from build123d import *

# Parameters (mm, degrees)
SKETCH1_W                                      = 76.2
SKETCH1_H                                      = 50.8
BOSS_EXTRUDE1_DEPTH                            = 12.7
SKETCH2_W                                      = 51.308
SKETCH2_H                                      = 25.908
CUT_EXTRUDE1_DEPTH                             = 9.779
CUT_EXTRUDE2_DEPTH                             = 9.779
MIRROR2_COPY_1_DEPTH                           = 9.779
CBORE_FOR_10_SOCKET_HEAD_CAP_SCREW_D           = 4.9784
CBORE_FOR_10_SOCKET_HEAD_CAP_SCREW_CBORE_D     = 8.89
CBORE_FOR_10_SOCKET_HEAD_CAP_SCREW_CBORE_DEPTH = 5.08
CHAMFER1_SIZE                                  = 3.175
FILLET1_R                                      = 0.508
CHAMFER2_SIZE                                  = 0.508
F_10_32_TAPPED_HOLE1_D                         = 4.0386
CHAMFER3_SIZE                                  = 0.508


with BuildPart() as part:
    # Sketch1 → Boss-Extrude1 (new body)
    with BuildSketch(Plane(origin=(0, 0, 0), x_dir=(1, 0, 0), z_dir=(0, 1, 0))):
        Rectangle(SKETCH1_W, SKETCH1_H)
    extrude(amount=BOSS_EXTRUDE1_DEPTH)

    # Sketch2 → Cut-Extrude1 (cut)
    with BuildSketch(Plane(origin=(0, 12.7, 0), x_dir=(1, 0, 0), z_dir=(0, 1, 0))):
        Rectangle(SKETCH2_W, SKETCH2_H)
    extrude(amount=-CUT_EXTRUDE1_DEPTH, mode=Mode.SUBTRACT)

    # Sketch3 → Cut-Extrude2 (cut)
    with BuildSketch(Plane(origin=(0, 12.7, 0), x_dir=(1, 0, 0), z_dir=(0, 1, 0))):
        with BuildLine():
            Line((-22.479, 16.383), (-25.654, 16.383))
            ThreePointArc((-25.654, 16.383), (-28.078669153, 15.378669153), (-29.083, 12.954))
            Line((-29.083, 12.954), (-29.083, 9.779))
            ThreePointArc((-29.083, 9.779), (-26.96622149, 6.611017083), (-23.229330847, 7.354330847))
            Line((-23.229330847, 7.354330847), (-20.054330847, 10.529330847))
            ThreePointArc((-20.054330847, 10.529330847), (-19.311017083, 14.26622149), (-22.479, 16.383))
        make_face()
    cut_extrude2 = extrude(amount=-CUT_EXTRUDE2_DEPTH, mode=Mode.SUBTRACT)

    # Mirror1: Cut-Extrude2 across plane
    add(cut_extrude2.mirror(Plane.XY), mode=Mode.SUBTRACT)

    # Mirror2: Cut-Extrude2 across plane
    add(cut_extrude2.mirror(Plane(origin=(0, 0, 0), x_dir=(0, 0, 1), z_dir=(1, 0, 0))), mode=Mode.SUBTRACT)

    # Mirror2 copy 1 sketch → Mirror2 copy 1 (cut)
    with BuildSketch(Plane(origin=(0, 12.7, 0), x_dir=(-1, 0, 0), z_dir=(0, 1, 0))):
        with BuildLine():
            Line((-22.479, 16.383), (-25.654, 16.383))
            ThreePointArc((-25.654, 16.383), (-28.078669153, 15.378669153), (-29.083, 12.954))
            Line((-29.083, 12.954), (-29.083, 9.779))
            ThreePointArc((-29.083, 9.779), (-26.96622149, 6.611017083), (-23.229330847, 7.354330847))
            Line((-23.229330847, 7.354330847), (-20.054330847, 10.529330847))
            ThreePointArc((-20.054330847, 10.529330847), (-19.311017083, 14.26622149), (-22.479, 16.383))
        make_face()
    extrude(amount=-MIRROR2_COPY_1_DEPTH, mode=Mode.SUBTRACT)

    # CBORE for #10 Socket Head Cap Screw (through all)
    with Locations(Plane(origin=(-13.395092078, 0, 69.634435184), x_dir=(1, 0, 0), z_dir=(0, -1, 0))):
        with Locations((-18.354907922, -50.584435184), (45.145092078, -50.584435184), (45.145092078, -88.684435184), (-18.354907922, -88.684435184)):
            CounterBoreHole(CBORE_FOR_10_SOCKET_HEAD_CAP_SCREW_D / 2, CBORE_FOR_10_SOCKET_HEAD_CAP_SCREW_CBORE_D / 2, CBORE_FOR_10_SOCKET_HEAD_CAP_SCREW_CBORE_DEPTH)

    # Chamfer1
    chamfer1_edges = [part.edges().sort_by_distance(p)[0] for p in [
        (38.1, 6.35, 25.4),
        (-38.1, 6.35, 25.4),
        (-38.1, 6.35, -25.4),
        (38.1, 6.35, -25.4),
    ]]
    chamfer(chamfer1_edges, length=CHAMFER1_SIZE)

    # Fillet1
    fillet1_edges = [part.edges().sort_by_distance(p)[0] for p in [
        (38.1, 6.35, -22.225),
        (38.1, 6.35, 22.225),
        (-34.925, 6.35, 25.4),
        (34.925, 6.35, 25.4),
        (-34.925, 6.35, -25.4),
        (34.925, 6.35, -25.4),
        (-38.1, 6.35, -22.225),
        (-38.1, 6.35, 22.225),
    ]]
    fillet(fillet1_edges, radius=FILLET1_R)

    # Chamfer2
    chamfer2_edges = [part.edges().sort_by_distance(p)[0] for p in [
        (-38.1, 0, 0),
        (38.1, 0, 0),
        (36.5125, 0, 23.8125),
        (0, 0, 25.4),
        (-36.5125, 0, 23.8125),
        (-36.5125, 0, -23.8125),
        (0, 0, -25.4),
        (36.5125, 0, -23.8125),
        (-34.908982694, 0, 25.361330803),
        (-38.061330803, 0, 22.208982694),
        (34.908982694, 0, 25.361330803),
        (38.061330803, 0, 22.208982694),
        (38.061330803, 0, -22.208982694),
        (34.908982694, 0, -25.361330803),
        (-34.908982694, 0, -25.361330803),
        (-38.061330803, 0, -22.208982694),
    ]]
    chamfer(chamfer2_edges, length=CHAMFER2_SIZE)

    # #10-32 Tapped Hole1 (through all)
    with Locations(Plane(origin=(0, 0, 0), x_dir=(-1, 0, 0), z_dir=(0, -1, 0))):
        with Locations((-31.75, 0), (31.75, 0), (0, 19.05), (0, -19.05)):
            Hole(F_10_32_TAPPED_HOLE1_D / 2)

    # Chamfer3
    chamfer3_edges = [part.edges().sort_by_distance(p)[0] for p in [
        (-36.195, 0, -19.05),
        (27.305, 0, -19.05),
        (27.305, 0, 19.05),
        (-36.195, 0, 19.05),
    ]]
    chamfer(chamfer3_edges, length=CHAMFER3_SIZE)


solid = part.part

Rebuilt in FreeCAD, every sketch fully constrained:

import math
import FreeCAD as App
import Part
import Sketcher

V = App.Vector
Q = App.Units.Quantity


def edges_at(feature, points):
    """Names of the edges that pass closest to the given points."""
    edges = feature.Shape.Edges
    near = lambda p: min(range(len(edges)), key=lambda i: edges[i].distToShape(Part.Vertex(*p))[0])
    return sorted({f"Edge{near(p) + 1}" for p in points})

doc = App.newDocument("Part")
params = doc.addObject("Spreadsheet::Sheet", "Params")
for row, (alias, value) in enumerate([
    ("sketch1_width", "3 in"),
    ("sketch1_height", "2 in"),
    ("pad1_length", "0.5 in"),
    ("sketch2_width", "2.02 in"),
    ("sketch2_height", "1.02 in"),
    ("pocket1_length", "0.385 in"),
    ("sketch3_radius", "0.135 in"),
    ("sketch3_width", "0.125 in"),
    ("pocket2_length", "0.385 in"),
    ("sketch4_radius", "0.135 in"),
    ("sketch4_width", "0.125 in"),
    ("pocket3_length", "0.385 in"),
    ("sketch5_diameter", "0.196 in"),
    ("hole_diameter", "0.196 in"),
    ("hole_cbore_diameter", "0.35 in"),
    ("hole_cbore_depth", "0.2 in"),
    ("chamfer_size", "0.125 in"),
    ("fillet_radius", "0.02 in"),
    ("chamfer2_size", "0.02 in"),
    ("sketch6_diameter", "0.159 in"),
    ("hole2_diameter", "0.159 in"),
    ("chamfer3_size", "0.02 in"),
], start=1):
    params.set(f"A{row}", alias)
    params.set(f"B{row}", "=" + value)
    params.setAlias(f"B{row}", alias)

body = doc.addObject("PartDesign::Body", "Body")

# Sketch on XZ plane
sketch1 = body.newObject("Sketcher::SketchObject", "Sketch")
sketch1.AttachmentSupport = (doc.getObject("XZ_Plane"), [""])
sketch1.MapMode = "FlatFace"
sketch1.addGeometry([
    Part.LineSegment(V(-38, -25, 0), V(-38, 25, 0)),
    Part.LineSegment(V(-38, 25, 0), V(38, 25, 0)),
    Part.LineSegment(V(38, 25, 0), V(38, -25, 0)),
    Part.LineSegment(V(38, -25, 0), V(-38, -25, 0)),
], False)
sketch1.addConstraint([
    Sketcher.Constraint("Coincident", 0, 2, 1, 1),
    Sketcher.Constraint("Coincident", 1, 2, 2, 1),
    Sketcher.Constraint("Coincident", 2, 2, 3, 1),
    Sketcher.Constraint("Coincident", 3, 2, 0, 1),
    Sketcher.Constraint("Vertical", 0),
    Sketcher.Constraint("Horizontal", 1),
    Sketcher.Constraint("Vertical", 2),
    Sketcher.Constraint("Horizontal", 3),
    Sketcher.Constraint("Symmetric", 0, 2, 2, 2, -1, 1),
    Sketcher.Constraint("DistanceX", 1, 1, 1, 2, Q("3 in")),
    Sketcher.Constraint("DistanceY", 0, 1, 0, 2, Q("2 in")),
])
sketch1.setExpression("Constraints[9]", "Params.sketch1_width")
sketch1.setExpression("Constraints[10]", "Params.sketch1_height")
pad1 = body.newObject("PartDesign::Pad", "Pad")
pad1.Profile = sketch1
pad1.setExpression("Length", "Params.pad1_length")
pad1.Reversed = True

# Sketch on XZ plane
sketch2 = body.newObject("Sketcher::SketchObject", "Sketch001")
sketch2.AttachmentSupport = (doc.getObject("XZ_Plane"), [""])
sketch2.MapMode = "FlatFace"
sketch2.AttachmentOffset = App.Placement(V(0, 0, -0.5 * 25.4), App.Rotation())
sketch2.addGeometry([
    Part.LineSegment(V(-26, -13, 0), V(-26, 13, 0)),
    Part.LineSegment(V(-26, 13, 0), V(26, 13, 0)),
    Part.LineSegment(V(26, 13, 0), V(26, -13, 0)),
    Part.LineSegment(V(26, -13, 0), V(-26, -13, 0)),
], False)
sketch2.addConstraint([
    Sketcher.Constraint("Coincident", 0, 2, 1, 1),
    Sketcher.Constraint("Coincident", 1, 2, 2, 1),
    Sketcher.Constraint("Coincident", 2, 2, 3, 1),
    Sketcher.Constraint("Coincident", 3, 2, 0, 1),
    Sketcher.Constraint("Vertical", 0),
    Sketcher.Constraint("Horizontal", 1),
    Sketcher.Constraint("Vertical", 2),
    Sketcher.Constraint("Horizontal", 3),
    Sketcher.Constraint("Symmetric", 0, 2, 2, 2, -1, 1),
    Sketcher.Constraint("DistanceX", 1, 1, 1, 2, Q("2.02 in")),
    Sketcher.Constraint("DistanceY", 0, 1, 0, 2, Q("1.02 in")),
])
sketch2.setExpression("Constraints[9]", "Params.sketch2_width")
sketch2.setExpression("Constraints[10]", "Params.sketch2_height")
pocket1 = body.newObject("PartDesign::Pocket", "Pocket")
pocket1.Profile = sketch2
pocket1.setExpression("Length", "Params.pocket1_length")
pocket1.Reversed = True

# Sketch on XZ plane
sketch3 = body.newObject("Sketcher::SketchObject", "Sketch002")
sketch3.AttachmentSupport = (doc.getObject("XZ_Plane"), [""])
sketch3.MapMode = "FlatFace"
sketch3.AttachmentOffset = App.Placement(V(0, 0, -0.5 * 25.4), App.Rotation())
sketch3.addGeometry([
    Part.LineSegment(V(-22.5, -16.4, 0), V(-25.7, -16.4, 0)),  # 0
    Part.ArcOfCircle(Part.Circle(V(-25.7, -13, 0), V(0, 0, 1), 3.4), math.radians(180), math.radians(270)),  # 1
    Part.LineSegment(V(-29.1, -13, 0), V(-29.1, -9.8, 0)),  # 2
    Part.ArcOfCircle(Part.Circle(V(-25.7, -9.8, 0), V(0, 0, 1), 3.4), math.radians(45), math.radians(180)),  # 3
    Part.LineSegment(V(-23.2, -7.4, 0), V(-20.1, -10.5, 0)),  # 4
    Part.ArcOfCircle(Part.Circle(V(-22.5, -13, 0), V(0, 0, 1), 3.4), math.radians(-90), math.radians(45)),  # 5
], False)
sketch3.addConstraint([
    Sketcher.Constraint("Tangent", 0, 2, 1, 2),
    Sketcher.Constraint("Tangent", 1, 1, 2, 1),
    Sketcher.Constraint("Tangent", 2, 2, 3, 2),
    Sketcher.Constraint("Tangent", 3, 1, 4, 1),
    Sketcher.Constraint("Tangent", 4, 2, 5, 2),
    Sketcher.Constraint("Tangent", 5, 1, 0, 1),
    Sketcher.Constraint("Horizontal", 0),
    Sketcher.Constraint("Vertical", 2),
    Sketcher.Constraint("Equal", 1, 3),
    Sketcher.Constraint("Equal", 3, 5),
    Sketcher.Constraint("Equal", 0, 2),
    Sketcher.Constraint("Radius", 1, Q("0.135 in")),
    Sketcher.Constraint("DistanceX", 0, 2, 0, 1, Q("0.125 in")),
    Sketcher.Constraint("DistanceX", 1, 3, -1, 1, Q("1.01 in")),
    Sketcher.Constraint("DistanceY", 1, 3, -1, 1, Q("0.51 in")),
])
sketch3.setExpression("Constraints[11]", "Params.sketch3_radius")
sketch3.setExpression("Constraints[12]", "Params.sketch3_width")
pocket2 = body.newObject("PartDesign::Pocket", "Pocket001")
pocket2.Profile = sketch3
pocket2.setExpression("Length", "Params.pocket2_length")
pocket2.Reversed = True
doc.recompute()

mirrored = body.newObject("PartDesign::Mirrored", "Mirrored")
mirrored.Originals = [pocket2]
mirrored.MirrorPlane = (doc.getObject("XY_Plane"), [""])
body.Tip = mirrored
doc.recompute()

mirrored2 = body.newObject("PartDesign::Mirrored", "Mirrored001")
mirrored2.Originals = [pocket2]
mirrored2.MirrorPlane = (doc.getObject("YZ_Plane"), [""])
body.Tip = mirrored2

# Sketch on XZ plane
sketch4 = body.newObject("Sketcher::SketchObject", "Sketch003")
sketch4.AttachmentSupport = (doc.getObject("XZ_Plane"), [""])
sketch4.MapMode = "FlatFace"
sketch4.AttachmentOffset = App.Placement(V(0, 0, -0.5 * 25.4), App.Rotation())
sketch4.addGeometry([
    Part.LineSegment(V(22.5, 16.4, 0), V(25.7, 16.4, 0)),  # 0
    Part.ArcOfCircle(Part.Circle(V(25.7, 13, 0), V(0, 0, 1), 3.4), math.radians(0), math.radians(90)),  # 1
    Part.LineSegment(V(29.1, 13, 0), V(29.1, 9.8, 0)),  # 2
    Part.ArcOfCircle(Part.Circle(V(25.7, 9.8, 0), V(0, 0, 1), 3.4), math.radians(-135), math.radians(0)),  # 3
    Part.LineSegment(V(23.2, 7.4, 0), V(20.1, 10.5, 0)),  # 4
    Part.ArcOfCircle(Part.Circle(V(22.5, 13, 0), V(0, 0, 1), 3.4), math.radians(90), math.radians(225)),  # 5
], False)
sketch4.addConstraint([
    Sketcher.Constraint("Tangent", 0, 2, 1, 2),
    Sketcher.Constraint("Tangent", 1, 1, 2, 1),
    Sketcher.Constraint("Tangent", 2, 2, 3, 2),
    Sketcher.Constraint("Tangent", 3, 1, 4, 1),
    Sketcher.Constraint("Tangent", 4, 2, 5, 2),
    Sketcher.Constraint("Tangent", 5, 1, 0, 1),
    Sketcher.Constraint("Horizontal", 0),
    Sketcher.Constraint("Vertical", 2),
    Sketcher.Constraint("Equal", 1, 3),
    Sketcher.Constraint("Equal", 3, 5),
    Sketcher.Constraint("Equal", 0, 2),
    Sketcher.Constraint("Radius", 1, Q("0.135 in")),
    Sketcher.Constraint("DistanceX", 0, 1, 0, 2, Q("0.125 in")),
    Sketcher.Constraint("DistanceX", -1, 1, 1, 3, Q("1.01 in")),
    Sketcher.Constraint("DistanceY", -1, 1, 1, 3, Q("0.51 in")),
])
sketch4.setExpression("Constraints[11]", "Params.sketch4_radius")
sketch4.setExpression("Constraints[12]", "Params.sketch4_width")
pocket3 = body.newObject("PartDesign::Pocket", "Pocket002")
pocket3.Profile = sketch4
pocket3.setExpression("Length", "Params.pocket3_length")
pocket3.Reversed = True

# Sketch on XZ plane
sketch5 = body.newObject("Sketcher::SketchObject", "Sketch004")
sketch5.AttachmentSupport = (doc.getObject("XZ_Plane"), [""])
sketch5.MapMode = "FlatFace"
sketch5.addGeometry([
    Part.Circle(V(-31.8, 19.1, 0), V(0, 0, 1), 2.5),
    Part.Circle(V(31.8, 19.1, 0), V(0, 0, 1), 2.5),
    Part.Circle(V(31.8, -19.1, 0), V(0, 0, 1), 2.5),
    Part.Circle(V(-31.8, -19.1, 0), V(0, 0, 1), 2.5),
], False)
sketch5.addConstraint([
    Sketcher.Constraint("Equal", 0, 1),
    Sketcher.Constraint("Equal", 1, 2),
    Sketcher.Constraint("Equal", 2, 3),
    Sketcher.Constraint("Symmetric", 0, 3, 2, 3, -1, 1),
    Sketcher.Constraint("Symmetric", 1, 3, 3, 3, -1, 1),
    Sketcher.Constraint("Symmetric", 0, 3, 1, 3, -2),
    Sketcher.Constraint("Diameter", 0, Q("0.196 in")),
    Sketcher.Constraint("DistanceX", 0, 3, 1, 3, Q("2.5 in")),
    Sketcher.Constraint("DistanceY", 2, 3, 1, 3, Q("1.5 in")),
])
sketch5.setExpression("Constraints[6]", "Params.sketch5_diameter")
doc.recompute()
hole = body.newObject("PartDesign::Hole", "Hole")
hole.Profile = sketch5
hole.ThreadType = "None"
hole.setExpression("Diameter", "Params.hole_diameter")
hole.DepthType = "ThroughAll"
hole.HoleCutType = "Counterbore"
hole.setExpression("HoleCutDiameter", "Params.hole_cbore_diameter")
hole.setExpression("HoleCutDepth", "Params.hole_cbore_depth")
doc.recompute()

chamfer = body.newObject("PartDesign::Chamfer", "Chamfer")
chamfer.Base = (hole, edges_at(hole, [
    (38.1, 6.35, 25.4),
    (-38.1, 6.35, 25.4),
    (-38.1, 6.35, -25.4),
    (38.1, 6.35, -25.4),
]))
chamfer.setExpression("Size", "Params.chamfer_size")
doc.recompute()

fillet = body.newObject("PartDesign::Fillet", "Fillet")
fillet.Base = (chamfer, edges_at(chamfer, [
    (38.1, 6.35, -22.225),
    (38.1, 6.35, 22.225),
    (-34.925, 6.35, 25.4),
    (34.925, 6.35, 25.4),
    (-34.925, 6.35, -25.4),
    (34.925, 6.35, -25.4),
    (-38.1, 6.35, -22.225),
    (-38.1, 6.35, 22.225),
]))
fillet.setExpression("Radius", "Params.fillet_radius")
doc.recompute()

chamfer2 = body.newObject("PartDesign::Chamfer", "Chamfer001")
chamfer2.Base = (fillet, edges_at(fillet, [
    (-38.1, 0, 0),
    (38.1, 0, 0),
    (36.513, 0, 23.812),
    (0, 0, 25.4),
    (-36.513, 0, 23.812),
    (-36.513, 0, -23.812),
    (0, 0, -25.4),
    (36.513, 0, -23.812),
    (-34.909, 0, 25.361),
    (-38.061, 0, 22.209),
    (34.909, 0, 25.361),
    (38.061, 0, 22.209),
    (38.061, 0, -22.209),
    (34.909, 0, -25.361),
    (-34.909, 0, -25.361),
    (-38.061, 0, -22.209),
]))
chamfer2.setExpression("Size", "Params.chamfer2_size")

# Sketch on XZ plane
sketch6 = body.newObject("Sketcher::SketchObject", "Sketch005")
sketch6.AttachmentSupport = (doc.getObject("XZ_Plane"), [""])
sketch6.MapMode = "FlatFace"
sketch6.addGeometry([
    Part.Circle(V(31.8, 0, 0), V(0, 0, 1), 2),
    Part.Circle(V(-31.8, 0, 0), V(0, 0, 1), 2),
    Part.Circle(V(0, -19.1, 0), V(0, 0, 1), 2),
    Part.Circle(V(0, 19.1, 0), V(0, 0, 1), 2),
], False)
sketch6.addConstraint([
    Sketcher.Constraint("Equal", 0, 1),
    Sketcher.Constraint("Equal", 1, 2),
    Sketcher.Constraint("Equal", 2, 3),
    Sketcher.Constraint("Symmetric", 0, 3, 1, 3, -1, 1),
    Sketcher.Constraint("Symmetric", 2, 3, 3, 3, -1, 1),
    Sketcher.Constraint("PointOnObject", 0, 3, -1),
    Sketcher.Constraint("PointOnObject", 2, 3, -2),
    Sketcher.Constraint("Diameter", 0, Q("0.159 in")),
    Sketcher.Constraint("DistanceX", 1, 3, 0, 3, Q("2.5 in")),
    Sketcher.Constraint("DistanceY", 2, 3, 3, 3, Q("1.5 in")),
])
sketch6.setExpression("Constraints[7]", "Params.sketch6_diameter")
doc.recompute()
hole2 = body.newObject("PartDesign::Hole", "Hole001")
hole2.Profile = sketch6
hole2.ThreadType = "None"
hole2.setExpression("Diameter", "Params.hole2_diameter")
hole2.DepthType = "ThroughAll"
doc.recompute()

chamfer3 = body.newObject("PartDesign::Chamfer", "Chamfer002")
chamfer3.Base = (hole2, edges_at(hole2, [
    (-36.195, 0, -19.05),
    (27.305, 0, -19.05),
    (27.305, 0, 19.05),
    (-36.195, 0, 19.05),
]))
chamfer3.setExpression("Size", "Params.chamfer3_size")

doc.recompute()
